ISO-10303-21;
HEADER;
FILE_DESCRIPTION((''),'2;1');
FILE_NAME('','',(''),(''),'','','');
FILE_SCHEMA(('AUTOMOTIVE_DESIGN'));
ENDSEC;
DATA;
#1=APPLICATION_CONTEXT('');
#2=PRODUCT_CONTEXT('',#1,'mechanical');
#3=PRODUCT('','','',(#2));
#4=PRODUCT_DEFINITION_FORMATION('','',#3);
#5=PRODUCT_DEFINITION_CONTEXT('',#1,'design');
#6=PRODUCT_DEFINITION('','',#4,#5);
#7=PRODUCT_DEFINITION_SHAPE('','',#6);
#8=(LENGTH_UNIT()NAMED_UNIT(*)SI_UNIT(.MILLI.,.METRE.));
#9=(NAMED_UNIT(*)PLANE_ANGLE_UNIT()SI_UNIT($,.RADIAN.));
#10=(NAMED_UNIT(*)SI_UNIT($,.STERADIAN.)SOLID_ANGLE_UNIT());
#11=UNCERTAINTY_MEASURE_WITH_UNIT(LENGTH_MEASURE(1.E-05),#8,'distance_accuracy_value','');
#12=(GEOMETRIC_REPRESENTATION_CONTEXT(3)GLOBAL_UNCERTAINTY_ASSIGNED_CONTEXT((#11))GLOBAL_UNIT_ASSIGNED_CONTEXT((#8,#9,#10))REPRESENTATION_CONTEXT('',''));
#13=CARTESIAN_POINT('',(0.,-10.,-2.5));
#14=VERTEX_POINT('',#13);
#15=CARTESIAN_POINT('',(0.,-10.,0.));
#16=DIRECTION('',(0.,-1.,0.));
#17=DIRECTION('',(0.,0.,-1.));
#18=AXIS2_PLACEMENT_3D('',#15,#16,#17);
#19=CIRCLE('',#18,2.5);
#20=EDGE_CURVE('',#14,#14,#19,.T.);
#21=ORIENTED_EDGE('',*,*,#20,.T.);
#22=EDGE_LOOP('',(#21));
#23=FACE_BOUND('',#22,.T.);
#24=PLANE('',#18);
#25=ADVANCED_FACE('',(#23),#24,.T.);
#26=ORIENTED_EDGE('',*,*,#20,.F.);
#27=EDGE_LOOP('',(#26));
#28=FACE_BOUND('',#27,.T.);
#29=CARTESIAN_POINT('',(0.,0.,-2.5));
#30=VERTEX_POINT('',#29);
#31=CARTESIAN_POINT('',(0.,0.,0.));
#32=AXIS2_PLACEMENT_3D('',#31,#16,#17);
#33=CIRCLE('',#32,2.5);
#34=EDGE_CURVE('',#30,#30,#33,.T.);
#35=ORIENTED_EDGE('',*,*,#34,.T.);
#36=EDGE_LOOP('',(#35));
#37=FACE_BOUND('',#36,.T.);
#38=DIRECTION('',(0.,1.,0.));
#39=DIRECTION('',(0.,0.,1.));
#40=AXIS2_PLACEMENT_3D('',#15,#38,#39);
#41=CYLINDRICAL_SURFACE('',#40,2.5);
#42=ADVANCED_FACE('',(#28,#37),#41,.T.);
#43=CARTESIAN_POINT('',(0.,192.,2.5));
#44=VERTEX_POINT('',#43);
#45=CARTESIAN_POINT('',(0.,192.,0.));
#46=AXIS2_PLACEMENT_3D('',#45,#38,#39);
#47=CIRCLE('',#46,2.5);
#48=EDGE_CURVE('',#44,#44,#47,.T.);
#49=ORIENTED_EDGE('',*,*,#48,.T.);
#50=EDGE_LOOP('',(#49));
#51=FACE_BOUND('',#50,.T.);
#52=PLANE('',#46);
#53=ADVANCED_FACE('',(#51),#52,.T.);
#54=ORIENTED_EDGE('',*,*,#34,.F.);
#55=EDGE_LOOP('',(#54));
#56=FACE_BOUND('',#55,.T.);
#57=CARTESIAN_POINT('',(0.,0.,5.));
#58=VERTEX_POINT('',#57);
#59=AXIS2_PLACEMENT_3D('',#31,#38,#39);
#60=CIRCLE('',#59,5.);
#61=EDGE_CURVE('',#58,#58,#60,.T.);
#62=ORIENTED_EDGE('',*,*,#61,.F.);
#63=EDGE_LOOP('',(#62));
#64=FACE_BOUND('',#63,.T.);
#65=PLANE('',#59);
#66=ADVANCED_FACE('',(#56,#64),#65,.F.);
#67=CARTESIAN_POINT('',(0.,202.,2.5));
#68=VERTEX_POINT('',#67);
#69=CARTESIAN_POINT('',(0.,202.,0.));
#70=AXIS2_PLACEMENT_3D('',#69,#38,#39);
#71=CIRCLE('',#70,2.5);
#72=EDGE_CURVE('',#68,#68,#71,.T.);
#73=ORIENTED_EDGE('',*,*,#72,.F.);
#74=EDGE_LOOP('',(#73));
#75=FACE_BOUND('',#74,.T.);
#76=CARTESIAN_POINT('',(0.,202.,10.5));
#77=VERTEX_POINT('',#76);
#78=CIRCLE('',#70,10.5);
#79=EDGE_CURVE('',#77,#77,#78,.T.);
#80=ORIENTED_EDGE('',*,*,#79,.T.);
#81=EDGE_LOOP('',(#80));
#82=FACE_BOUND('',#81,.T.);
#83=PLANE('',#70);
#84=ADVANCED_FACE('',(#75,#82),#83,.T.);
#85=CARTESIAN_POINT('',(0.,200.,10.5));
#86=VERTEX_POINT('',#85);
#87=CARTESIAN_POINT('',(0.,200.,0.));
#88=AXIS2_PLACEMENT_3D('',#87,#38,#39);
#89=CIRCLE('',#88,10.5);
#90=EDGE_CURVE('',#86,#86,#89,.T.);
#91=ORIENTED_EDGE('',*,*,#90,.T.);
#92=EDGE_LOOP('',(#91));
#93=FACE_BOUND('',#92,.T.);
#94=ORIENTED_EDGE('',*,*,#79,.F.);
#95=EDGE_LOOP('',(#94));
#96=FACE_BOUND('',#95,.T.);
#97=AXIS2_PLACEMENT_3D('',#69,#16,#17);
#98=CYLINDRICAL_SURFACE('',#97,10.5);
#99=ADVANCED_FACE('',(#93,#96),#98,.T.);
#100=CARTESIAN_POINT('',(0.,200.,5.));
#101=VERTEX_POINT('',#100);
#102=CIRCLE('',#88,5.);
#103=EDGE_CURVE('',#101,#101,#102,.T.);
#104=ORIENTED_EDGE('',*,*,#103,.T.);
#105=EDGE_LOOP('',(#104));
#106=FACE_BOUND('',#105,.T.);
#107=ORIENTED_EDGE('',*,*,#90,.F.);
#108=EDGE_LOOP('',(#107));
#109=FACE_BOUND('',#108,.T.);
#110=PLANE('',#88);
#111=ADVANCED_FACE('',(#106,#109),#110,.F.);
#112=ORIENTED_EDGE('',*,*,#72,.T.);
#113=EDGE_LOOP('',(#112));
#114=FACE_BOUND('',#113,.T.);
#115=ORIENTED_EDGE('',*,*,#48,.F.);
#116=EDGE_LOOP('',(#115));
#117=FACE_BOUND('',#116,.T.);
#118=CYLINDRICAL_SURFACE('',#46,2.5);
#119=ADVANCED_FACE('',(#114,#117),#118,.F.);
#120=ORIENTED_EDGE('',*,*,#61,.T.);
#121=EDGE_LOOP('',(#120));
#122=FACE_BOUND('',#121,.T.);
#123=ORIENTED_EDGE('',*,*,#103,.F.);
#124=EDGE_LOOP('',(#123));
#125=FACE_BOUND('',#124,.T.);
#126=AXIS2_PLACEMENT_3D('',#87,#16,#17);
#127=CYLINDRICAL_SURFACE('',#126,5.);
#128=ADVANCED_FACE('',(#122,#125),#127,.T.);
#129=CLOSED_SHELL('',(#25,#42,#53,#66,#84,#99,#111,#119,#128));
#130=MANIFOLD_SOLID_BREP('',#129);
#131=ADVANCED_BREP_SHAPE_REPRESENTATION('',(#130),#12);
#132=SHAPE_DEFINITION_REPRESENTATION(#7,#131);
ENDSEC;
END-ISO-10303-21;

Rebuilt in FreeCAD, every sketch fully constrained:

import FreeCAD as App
import Part
import Sketcher
Q = App.Units.Quantity

doc = App.newDocument("Part")
body = doc.addObject("PartDesign::Body", "Body")

# Sketch on XZ plane
sketch1 = doc.addObject("Sketcher::SketchObject", "Sketch")
body.addObject(sketch1)
sketch1.AttachmentSupport = (doc.XZ_Plane, [""])
sketch1.MapMode = "FlatFace"
sketch1.addGeometry(Part.Circle(App.Vector(0, 0, 0), App.Vector(0, 0, 1), 5), False)
sketch1.addConstraint(Sketcher.Constraint("Coincident", 0, 3, -1, 1))
sketch1.addConstraint(Sketcher.Constraint("Diameter", 0, Q("10 mm")))
pad1 = doc.addObject("PartDesign::Pad", "Pad")
body.addObject(pad1)
pad1.Profile = sketch1
pad1.Length = 200
pad1.Reversed = True

# Sketch on XZ plane
sketch2 = doc.addObject("Sketcher::SketchObject", "Sketch001")
body.addObject(sketch2)
sketch2.AttachmentSupport = (doc.XZ_Plane, [""])
sketch2.MapMode = "FlatFace"
sketch2.AttachmentOffset = App.Placement(App.Vector(0, 0, -200), App.Rotation())
sketch2.addGeometry(Part.Circle(App.Vector(0, 0, 0), App.Vector(0, 0, 1), 10.5), False)
sketch2.addConstraint(Sketcher.Constraint("Coincident", 0, 3, -1, 1))
sketch2.addConstraint(Sketcher.Constraint("Diameter", 0, Q("21 mm")))
pad2 = doc.addObject("PartDesign::Pad", "Pad001")
body.addObject(pad2)
pad2.Profile = sketch2
pad2.Length = 2
pad2.Reversed = True

# Sketch on XZ plane
sketch3 = doc.addObject("Sketcher::SketchObject", "Sketch002")
body.addObject(sketch3)
sketch3.AttachmentSupport = (doc.XZ_Plane, [""])
sketch3.MapMode = "FlatFace"
sketch3.AttachmentOffset = App.Placement(App.Vector(0, 0, -202), App.Rotation())
sketch3.addGeometry(Part.Circle(App.Vector(0, 0, 0), App.Vector(0, 0, 1), 2.5), False)
sketch3.addConstraint(Sketcher.Constraint("Coincident", 0, 3, -1, 1))
sketch3.addConstraint(Sketcher.Constraint("Diameter", 0, Q("5 mm")))
pocket1 = doc.addObject("PartDesign::Pocket", "Pocket")
body.addObject(pocket1)
pocket1.Profile = sketch3
pocket1.Length = 10
pocket1.Reversed = True

# Sketch on XZ plane
sketch4 = doc.addObject("Sketcher::SketchObject", "Sketch003")
body.addObject(sketch4)
sketch4.AttachmentSupport = (doc.XZ_Plane, [""])
sketch4.MapMode = "FlatFace"
sketch4.addGeometry(Part.Circle(App.Vector(0, 0, 0), App.Vector(0, 0, 1), 2.5), False)
sketch4.addConstraint(Sketcher.Constraint("Coincident", 0, 3, -1, 1))
sketch4.addConstraint(Sketcher.Constraint("Diameter", 0, Q("5 mm")))
pad3 = doc.addObject("PartDesign::Pad", "Pad002")
body.addObject(pad3)
pad3.Profile = sketch4
pad3.Length = 10

doc.recompute()
